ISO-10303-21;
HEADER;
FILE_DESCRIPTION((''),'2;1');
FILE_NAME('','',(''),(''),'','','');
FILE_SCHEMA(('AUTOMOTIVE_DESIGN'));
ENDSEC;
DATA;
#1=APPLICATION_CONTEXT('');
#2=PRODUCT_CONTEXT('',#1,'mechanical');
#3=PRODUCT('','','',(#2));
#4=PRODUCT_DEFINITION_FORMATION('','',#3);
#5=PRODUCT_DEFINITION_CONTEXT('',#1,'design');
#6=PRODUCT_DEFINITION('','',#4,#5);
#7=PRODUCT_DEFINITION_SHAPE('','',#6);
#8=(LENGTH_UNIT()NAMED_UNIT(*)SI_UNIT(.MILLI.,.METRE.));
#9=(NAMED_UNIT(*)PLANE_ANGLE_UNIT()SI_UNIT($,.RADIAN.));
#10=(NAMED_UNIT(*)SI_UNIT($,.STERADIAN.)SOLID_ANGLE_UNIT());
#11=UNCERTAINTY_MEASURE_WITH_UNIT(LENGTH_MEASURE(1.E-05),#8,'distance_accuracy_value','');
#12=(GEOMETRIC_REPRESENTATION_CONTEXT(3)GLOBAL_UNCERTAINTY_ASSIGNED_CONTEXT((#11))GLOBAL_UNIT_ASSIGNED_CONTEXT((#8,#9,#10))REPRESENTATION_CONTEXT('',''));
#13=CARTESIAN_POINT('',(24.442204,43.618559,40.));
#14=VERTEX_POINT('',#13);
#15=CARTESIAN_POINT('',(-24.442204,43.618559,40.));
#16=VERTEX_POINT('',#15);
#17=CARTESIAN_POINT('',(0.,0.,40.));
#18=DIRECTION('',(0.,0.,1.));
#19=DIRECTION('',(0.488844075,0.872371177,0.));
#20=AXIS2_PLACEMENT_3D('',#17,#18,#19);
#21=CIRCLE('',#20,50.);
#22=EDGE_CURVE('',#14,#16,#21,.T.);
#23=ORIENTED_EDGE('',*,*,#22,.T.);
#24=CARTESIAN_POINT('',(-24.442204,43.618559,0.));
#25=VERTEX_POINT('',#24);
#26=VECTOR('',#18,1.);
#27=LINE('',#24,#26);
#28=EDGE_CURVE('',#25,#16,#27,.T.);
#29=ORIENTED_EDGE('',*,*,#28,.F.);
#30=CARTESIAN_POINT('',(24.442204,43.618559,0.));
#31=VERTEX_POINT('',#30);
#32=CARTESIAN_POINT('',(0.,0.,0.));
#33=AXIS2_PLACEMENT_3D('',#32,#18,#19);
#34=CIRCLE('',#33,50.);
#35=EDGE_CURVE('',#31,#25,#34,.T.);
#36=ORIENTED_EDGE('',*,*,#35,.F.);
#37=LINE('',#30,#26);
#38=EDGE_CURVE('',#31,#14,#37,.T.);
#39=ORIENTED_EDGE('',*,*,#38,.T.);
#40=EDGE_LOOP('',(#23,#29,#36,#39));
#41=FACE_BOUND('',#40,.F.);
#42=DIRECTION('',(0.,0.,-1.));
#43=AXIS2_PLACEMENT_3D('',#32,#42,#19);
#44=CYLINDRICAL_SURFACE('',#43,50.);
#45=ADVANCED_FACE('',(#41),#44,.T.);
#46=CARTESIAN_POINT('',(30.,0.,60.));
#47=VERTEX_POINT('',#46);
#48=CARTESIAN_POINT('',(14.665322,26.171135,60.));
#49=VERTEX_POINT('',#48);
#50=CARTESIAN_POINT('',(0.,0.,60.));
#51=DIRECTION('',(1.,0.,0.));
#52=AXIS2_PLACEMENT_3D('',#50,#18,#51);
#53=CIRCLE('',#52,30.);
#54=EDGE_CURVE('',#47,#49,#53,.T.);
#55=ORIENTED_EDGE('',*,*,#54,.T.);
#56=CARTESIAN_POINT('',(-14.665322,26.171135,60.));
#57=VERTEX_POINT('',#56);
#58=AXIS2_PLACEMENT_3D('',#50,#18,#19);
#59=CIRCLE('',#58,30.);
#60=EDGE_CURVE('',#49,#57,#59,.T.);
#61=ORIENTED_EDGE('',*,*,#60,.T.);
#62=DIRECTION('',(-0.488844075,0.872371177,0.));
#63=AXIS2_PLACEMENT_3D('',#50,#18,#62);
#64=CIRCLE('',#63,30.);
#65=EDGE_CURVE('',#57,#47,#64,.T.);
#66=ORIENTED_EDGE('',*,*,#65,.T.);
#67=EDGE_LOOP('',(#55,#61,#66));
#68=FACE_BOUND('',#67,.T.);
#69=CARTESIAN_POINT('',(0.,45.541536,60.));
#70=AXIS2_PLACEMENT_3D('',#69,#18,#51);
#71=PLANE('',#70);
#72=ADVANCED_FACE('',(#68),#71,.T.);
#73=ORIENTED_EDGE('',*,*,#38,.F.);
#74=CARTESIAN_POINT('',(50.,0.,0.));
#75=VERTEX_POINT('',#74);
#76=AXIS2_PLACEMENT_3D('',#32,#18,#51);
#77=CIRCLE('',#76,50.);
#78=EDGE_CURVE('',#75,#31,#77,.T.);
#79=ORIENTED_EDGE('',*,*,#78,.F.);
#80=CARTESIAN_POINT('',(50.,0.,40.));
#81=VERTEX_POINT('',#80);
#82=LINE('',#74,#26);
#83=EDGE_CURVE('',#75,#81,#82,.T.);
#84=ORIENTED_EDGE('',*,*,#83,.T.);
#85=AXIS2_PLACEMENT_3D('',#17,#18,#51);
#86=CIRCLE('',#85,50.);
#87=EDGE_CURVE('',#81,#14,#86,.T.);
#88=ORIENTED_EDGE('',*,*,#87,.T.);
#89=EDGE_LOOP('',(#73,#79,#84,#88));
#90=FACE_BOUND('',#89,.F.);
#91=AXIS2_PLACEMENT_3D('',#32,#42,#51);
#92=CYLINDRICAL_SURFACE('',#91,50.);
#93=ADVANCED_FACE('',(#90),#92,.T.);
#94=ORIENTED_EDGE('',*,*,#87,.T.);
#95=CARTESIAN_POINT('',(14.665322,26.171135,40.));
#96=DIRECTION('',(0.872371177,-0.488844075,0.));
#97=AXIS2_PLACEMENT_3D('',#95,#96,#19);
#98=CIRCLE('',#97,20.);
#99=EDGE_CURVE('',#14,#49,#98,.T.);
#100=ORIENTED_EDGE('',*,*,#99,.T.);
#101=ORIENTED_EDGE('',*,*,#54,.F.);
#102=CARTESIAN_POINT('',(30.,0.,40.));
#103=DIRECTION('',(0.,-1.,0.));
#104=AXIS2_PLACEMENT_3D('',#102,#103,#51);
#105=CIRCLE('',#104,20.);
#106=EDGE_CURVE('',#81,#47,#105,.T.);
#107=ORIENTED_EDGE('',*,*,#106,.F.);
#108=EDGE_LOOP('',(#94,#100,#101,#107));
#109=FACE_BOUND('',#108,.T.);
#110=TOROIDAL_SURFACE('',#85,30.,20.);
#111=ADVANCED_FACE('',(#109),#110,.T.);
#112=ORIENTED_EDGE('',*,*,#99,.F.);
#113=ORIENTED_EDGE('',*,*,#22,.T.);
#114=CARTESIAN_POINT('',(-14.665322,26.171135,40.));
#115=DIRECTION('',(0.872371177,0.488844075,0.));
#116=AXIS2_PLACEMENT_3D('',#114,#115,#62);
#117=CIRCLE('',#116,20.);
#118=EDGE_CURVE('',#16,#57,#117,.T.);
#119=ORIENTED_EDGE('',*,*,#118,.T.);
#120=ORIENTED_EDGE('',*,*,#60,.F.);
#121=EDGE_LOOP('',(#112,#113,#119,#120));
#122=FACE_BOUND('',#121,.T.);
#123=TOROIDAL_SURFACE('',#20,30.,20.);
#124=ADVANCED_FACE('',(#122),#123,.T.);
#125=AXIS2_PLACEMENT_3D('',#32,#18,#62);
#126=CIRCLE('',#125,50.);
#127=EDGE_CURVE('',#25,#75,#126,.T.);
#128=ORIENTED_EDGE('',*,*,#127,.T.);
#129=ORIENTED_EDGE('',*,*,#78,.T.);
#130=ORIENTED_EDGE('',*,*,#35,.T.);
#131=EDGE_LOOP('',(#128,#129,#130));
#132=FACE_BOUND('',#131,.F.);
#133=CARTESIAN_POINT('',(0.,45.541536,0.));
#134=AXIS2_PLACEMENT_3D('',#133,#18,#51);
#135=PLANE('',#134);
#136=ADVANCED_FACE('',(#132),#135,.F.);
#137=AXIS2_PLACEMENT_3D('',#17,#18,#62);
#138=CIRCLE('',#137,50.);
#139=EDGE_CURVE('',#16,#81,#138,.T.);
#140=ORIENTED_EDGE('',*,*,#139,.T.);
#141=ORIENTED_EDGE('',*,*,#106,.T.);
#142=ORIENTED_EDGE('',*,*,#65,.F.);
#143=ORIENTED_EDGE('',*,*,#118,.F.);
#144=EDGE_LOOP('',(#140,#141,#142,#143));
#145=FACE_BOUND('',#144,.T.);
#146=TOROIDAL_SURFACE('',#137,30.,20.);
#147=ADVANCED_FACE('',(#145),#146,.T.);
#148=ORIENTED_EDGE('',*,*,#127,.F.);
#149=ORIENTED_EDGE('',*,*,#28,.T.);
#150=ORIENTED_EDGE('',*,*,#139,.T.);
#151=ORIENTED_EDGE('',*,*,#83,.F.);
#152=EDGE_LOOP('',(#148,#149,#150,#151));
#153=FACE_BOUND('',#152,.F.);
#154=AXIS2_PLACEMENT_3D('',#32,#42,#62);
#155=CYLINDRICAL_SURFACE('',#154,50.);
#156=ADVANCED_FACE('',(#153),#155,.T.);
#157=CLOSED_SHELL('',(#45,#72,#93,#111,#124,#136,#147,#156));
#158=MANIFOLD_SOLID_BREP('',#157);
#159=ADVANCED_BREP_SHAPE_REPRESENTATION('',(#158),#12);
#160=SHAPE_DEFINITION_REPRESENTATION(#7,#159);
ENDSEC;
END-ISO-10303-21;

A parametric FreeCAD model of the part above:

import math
import FreeCAD as App
import Part
import Sketcher


def edges_at(feature, points):
    """Names of the edges that pass closest to the given points."""
    edges = feature.Shape.Edges
    near = lambda p: min(range(len(edges)), key=lambda i: edges[i].distToShape(Part.Vertex(*p))[0])
    return sorted({f"Edge{near(p) + 1}" for p in points})

doc = App.newDocument("Part")
params = doc.addObject("Spreadsheet::Sheet", "Params")
for row, (alias, value) in enumerate([
    ("sketch1_radius", "50 mm"),
    ("pad1_length", "60 mm"),
    ("fillet_radius", "20 mm"),
], start=1):
    params.set(f"A{row}", alias)
    params.set(f"B{row}", "=" + value)
    params.setAlias(f"B{row}", alias)

body = doc.addObject("PartDesign::Body", "Body")

# Sketch on XY plane
sketch1 = body.newObject("Sketcher::SketchObject", "Sketch")
sketch1.AttachmentSupport = (doc.getObject("XY_Plane"), [""])
sketch1.MapMode = "FlatFace"
sketch1.addGeometry([
    Part.ArcOfCircle(Part.Circle(App.Vector(0, 0, 0), App.Vector(0, 0, 1), 50), math.radians(60.735366), math.radians(119.264634)),
    Part.ArcOfCircle(Part.Circle(App.Vector(0, 0, 0), App.Vector(0, 0, 1), 50), math.radians(119.264634), math.radians(360)),
    Part.ArcOfCircle(Part.Circle(App.Vector(0, 0, 0), App.Vector(0, 0, 1), 50), math.radians(0), math.radians(60.735366)),
], False)
sketch1.addConstraint([
    Sketcher.Constraint("Tangent", 0, 2, 1, 1),
    Sketcher.Constraint("Tangent", 1, 2, 2, 1),
    Sketcher.Constraint("Tangent", 2, 2, 0, 1),
    Sketcher.Constraint("Coincident", 0, 3, -1, 1),
    Sketcher.Constraint("PointOnObject", 1, 2, -1),
    Sketcher.Constraint("Horizontal", 0, 2, 2, 2),
    Sketcher.Constraint("Radius", 0, 50.0),
    Sketcher.Constraint("DistanceY", -1, 1, 0, 2, 43.618559),
])
sketch1.setExpression("Constraints[6]", "Params.sketch1_radius")
pad1 = body.newObject("PartDesign::Pad", "Pad")
pad1.Profile = sketch1
pad1.setExpression("Length", "Params.pad1_length")
doc.recompute()

fillet = body.newObject("PartDesign::Fillet", "Fillet")
fillet.Base = (pad1, edges_at(pad1, [(-25.277, -43.14, 60)]))
fillet.setExpression("Radius", "Params.fillet_radius")

doc.recompute()
